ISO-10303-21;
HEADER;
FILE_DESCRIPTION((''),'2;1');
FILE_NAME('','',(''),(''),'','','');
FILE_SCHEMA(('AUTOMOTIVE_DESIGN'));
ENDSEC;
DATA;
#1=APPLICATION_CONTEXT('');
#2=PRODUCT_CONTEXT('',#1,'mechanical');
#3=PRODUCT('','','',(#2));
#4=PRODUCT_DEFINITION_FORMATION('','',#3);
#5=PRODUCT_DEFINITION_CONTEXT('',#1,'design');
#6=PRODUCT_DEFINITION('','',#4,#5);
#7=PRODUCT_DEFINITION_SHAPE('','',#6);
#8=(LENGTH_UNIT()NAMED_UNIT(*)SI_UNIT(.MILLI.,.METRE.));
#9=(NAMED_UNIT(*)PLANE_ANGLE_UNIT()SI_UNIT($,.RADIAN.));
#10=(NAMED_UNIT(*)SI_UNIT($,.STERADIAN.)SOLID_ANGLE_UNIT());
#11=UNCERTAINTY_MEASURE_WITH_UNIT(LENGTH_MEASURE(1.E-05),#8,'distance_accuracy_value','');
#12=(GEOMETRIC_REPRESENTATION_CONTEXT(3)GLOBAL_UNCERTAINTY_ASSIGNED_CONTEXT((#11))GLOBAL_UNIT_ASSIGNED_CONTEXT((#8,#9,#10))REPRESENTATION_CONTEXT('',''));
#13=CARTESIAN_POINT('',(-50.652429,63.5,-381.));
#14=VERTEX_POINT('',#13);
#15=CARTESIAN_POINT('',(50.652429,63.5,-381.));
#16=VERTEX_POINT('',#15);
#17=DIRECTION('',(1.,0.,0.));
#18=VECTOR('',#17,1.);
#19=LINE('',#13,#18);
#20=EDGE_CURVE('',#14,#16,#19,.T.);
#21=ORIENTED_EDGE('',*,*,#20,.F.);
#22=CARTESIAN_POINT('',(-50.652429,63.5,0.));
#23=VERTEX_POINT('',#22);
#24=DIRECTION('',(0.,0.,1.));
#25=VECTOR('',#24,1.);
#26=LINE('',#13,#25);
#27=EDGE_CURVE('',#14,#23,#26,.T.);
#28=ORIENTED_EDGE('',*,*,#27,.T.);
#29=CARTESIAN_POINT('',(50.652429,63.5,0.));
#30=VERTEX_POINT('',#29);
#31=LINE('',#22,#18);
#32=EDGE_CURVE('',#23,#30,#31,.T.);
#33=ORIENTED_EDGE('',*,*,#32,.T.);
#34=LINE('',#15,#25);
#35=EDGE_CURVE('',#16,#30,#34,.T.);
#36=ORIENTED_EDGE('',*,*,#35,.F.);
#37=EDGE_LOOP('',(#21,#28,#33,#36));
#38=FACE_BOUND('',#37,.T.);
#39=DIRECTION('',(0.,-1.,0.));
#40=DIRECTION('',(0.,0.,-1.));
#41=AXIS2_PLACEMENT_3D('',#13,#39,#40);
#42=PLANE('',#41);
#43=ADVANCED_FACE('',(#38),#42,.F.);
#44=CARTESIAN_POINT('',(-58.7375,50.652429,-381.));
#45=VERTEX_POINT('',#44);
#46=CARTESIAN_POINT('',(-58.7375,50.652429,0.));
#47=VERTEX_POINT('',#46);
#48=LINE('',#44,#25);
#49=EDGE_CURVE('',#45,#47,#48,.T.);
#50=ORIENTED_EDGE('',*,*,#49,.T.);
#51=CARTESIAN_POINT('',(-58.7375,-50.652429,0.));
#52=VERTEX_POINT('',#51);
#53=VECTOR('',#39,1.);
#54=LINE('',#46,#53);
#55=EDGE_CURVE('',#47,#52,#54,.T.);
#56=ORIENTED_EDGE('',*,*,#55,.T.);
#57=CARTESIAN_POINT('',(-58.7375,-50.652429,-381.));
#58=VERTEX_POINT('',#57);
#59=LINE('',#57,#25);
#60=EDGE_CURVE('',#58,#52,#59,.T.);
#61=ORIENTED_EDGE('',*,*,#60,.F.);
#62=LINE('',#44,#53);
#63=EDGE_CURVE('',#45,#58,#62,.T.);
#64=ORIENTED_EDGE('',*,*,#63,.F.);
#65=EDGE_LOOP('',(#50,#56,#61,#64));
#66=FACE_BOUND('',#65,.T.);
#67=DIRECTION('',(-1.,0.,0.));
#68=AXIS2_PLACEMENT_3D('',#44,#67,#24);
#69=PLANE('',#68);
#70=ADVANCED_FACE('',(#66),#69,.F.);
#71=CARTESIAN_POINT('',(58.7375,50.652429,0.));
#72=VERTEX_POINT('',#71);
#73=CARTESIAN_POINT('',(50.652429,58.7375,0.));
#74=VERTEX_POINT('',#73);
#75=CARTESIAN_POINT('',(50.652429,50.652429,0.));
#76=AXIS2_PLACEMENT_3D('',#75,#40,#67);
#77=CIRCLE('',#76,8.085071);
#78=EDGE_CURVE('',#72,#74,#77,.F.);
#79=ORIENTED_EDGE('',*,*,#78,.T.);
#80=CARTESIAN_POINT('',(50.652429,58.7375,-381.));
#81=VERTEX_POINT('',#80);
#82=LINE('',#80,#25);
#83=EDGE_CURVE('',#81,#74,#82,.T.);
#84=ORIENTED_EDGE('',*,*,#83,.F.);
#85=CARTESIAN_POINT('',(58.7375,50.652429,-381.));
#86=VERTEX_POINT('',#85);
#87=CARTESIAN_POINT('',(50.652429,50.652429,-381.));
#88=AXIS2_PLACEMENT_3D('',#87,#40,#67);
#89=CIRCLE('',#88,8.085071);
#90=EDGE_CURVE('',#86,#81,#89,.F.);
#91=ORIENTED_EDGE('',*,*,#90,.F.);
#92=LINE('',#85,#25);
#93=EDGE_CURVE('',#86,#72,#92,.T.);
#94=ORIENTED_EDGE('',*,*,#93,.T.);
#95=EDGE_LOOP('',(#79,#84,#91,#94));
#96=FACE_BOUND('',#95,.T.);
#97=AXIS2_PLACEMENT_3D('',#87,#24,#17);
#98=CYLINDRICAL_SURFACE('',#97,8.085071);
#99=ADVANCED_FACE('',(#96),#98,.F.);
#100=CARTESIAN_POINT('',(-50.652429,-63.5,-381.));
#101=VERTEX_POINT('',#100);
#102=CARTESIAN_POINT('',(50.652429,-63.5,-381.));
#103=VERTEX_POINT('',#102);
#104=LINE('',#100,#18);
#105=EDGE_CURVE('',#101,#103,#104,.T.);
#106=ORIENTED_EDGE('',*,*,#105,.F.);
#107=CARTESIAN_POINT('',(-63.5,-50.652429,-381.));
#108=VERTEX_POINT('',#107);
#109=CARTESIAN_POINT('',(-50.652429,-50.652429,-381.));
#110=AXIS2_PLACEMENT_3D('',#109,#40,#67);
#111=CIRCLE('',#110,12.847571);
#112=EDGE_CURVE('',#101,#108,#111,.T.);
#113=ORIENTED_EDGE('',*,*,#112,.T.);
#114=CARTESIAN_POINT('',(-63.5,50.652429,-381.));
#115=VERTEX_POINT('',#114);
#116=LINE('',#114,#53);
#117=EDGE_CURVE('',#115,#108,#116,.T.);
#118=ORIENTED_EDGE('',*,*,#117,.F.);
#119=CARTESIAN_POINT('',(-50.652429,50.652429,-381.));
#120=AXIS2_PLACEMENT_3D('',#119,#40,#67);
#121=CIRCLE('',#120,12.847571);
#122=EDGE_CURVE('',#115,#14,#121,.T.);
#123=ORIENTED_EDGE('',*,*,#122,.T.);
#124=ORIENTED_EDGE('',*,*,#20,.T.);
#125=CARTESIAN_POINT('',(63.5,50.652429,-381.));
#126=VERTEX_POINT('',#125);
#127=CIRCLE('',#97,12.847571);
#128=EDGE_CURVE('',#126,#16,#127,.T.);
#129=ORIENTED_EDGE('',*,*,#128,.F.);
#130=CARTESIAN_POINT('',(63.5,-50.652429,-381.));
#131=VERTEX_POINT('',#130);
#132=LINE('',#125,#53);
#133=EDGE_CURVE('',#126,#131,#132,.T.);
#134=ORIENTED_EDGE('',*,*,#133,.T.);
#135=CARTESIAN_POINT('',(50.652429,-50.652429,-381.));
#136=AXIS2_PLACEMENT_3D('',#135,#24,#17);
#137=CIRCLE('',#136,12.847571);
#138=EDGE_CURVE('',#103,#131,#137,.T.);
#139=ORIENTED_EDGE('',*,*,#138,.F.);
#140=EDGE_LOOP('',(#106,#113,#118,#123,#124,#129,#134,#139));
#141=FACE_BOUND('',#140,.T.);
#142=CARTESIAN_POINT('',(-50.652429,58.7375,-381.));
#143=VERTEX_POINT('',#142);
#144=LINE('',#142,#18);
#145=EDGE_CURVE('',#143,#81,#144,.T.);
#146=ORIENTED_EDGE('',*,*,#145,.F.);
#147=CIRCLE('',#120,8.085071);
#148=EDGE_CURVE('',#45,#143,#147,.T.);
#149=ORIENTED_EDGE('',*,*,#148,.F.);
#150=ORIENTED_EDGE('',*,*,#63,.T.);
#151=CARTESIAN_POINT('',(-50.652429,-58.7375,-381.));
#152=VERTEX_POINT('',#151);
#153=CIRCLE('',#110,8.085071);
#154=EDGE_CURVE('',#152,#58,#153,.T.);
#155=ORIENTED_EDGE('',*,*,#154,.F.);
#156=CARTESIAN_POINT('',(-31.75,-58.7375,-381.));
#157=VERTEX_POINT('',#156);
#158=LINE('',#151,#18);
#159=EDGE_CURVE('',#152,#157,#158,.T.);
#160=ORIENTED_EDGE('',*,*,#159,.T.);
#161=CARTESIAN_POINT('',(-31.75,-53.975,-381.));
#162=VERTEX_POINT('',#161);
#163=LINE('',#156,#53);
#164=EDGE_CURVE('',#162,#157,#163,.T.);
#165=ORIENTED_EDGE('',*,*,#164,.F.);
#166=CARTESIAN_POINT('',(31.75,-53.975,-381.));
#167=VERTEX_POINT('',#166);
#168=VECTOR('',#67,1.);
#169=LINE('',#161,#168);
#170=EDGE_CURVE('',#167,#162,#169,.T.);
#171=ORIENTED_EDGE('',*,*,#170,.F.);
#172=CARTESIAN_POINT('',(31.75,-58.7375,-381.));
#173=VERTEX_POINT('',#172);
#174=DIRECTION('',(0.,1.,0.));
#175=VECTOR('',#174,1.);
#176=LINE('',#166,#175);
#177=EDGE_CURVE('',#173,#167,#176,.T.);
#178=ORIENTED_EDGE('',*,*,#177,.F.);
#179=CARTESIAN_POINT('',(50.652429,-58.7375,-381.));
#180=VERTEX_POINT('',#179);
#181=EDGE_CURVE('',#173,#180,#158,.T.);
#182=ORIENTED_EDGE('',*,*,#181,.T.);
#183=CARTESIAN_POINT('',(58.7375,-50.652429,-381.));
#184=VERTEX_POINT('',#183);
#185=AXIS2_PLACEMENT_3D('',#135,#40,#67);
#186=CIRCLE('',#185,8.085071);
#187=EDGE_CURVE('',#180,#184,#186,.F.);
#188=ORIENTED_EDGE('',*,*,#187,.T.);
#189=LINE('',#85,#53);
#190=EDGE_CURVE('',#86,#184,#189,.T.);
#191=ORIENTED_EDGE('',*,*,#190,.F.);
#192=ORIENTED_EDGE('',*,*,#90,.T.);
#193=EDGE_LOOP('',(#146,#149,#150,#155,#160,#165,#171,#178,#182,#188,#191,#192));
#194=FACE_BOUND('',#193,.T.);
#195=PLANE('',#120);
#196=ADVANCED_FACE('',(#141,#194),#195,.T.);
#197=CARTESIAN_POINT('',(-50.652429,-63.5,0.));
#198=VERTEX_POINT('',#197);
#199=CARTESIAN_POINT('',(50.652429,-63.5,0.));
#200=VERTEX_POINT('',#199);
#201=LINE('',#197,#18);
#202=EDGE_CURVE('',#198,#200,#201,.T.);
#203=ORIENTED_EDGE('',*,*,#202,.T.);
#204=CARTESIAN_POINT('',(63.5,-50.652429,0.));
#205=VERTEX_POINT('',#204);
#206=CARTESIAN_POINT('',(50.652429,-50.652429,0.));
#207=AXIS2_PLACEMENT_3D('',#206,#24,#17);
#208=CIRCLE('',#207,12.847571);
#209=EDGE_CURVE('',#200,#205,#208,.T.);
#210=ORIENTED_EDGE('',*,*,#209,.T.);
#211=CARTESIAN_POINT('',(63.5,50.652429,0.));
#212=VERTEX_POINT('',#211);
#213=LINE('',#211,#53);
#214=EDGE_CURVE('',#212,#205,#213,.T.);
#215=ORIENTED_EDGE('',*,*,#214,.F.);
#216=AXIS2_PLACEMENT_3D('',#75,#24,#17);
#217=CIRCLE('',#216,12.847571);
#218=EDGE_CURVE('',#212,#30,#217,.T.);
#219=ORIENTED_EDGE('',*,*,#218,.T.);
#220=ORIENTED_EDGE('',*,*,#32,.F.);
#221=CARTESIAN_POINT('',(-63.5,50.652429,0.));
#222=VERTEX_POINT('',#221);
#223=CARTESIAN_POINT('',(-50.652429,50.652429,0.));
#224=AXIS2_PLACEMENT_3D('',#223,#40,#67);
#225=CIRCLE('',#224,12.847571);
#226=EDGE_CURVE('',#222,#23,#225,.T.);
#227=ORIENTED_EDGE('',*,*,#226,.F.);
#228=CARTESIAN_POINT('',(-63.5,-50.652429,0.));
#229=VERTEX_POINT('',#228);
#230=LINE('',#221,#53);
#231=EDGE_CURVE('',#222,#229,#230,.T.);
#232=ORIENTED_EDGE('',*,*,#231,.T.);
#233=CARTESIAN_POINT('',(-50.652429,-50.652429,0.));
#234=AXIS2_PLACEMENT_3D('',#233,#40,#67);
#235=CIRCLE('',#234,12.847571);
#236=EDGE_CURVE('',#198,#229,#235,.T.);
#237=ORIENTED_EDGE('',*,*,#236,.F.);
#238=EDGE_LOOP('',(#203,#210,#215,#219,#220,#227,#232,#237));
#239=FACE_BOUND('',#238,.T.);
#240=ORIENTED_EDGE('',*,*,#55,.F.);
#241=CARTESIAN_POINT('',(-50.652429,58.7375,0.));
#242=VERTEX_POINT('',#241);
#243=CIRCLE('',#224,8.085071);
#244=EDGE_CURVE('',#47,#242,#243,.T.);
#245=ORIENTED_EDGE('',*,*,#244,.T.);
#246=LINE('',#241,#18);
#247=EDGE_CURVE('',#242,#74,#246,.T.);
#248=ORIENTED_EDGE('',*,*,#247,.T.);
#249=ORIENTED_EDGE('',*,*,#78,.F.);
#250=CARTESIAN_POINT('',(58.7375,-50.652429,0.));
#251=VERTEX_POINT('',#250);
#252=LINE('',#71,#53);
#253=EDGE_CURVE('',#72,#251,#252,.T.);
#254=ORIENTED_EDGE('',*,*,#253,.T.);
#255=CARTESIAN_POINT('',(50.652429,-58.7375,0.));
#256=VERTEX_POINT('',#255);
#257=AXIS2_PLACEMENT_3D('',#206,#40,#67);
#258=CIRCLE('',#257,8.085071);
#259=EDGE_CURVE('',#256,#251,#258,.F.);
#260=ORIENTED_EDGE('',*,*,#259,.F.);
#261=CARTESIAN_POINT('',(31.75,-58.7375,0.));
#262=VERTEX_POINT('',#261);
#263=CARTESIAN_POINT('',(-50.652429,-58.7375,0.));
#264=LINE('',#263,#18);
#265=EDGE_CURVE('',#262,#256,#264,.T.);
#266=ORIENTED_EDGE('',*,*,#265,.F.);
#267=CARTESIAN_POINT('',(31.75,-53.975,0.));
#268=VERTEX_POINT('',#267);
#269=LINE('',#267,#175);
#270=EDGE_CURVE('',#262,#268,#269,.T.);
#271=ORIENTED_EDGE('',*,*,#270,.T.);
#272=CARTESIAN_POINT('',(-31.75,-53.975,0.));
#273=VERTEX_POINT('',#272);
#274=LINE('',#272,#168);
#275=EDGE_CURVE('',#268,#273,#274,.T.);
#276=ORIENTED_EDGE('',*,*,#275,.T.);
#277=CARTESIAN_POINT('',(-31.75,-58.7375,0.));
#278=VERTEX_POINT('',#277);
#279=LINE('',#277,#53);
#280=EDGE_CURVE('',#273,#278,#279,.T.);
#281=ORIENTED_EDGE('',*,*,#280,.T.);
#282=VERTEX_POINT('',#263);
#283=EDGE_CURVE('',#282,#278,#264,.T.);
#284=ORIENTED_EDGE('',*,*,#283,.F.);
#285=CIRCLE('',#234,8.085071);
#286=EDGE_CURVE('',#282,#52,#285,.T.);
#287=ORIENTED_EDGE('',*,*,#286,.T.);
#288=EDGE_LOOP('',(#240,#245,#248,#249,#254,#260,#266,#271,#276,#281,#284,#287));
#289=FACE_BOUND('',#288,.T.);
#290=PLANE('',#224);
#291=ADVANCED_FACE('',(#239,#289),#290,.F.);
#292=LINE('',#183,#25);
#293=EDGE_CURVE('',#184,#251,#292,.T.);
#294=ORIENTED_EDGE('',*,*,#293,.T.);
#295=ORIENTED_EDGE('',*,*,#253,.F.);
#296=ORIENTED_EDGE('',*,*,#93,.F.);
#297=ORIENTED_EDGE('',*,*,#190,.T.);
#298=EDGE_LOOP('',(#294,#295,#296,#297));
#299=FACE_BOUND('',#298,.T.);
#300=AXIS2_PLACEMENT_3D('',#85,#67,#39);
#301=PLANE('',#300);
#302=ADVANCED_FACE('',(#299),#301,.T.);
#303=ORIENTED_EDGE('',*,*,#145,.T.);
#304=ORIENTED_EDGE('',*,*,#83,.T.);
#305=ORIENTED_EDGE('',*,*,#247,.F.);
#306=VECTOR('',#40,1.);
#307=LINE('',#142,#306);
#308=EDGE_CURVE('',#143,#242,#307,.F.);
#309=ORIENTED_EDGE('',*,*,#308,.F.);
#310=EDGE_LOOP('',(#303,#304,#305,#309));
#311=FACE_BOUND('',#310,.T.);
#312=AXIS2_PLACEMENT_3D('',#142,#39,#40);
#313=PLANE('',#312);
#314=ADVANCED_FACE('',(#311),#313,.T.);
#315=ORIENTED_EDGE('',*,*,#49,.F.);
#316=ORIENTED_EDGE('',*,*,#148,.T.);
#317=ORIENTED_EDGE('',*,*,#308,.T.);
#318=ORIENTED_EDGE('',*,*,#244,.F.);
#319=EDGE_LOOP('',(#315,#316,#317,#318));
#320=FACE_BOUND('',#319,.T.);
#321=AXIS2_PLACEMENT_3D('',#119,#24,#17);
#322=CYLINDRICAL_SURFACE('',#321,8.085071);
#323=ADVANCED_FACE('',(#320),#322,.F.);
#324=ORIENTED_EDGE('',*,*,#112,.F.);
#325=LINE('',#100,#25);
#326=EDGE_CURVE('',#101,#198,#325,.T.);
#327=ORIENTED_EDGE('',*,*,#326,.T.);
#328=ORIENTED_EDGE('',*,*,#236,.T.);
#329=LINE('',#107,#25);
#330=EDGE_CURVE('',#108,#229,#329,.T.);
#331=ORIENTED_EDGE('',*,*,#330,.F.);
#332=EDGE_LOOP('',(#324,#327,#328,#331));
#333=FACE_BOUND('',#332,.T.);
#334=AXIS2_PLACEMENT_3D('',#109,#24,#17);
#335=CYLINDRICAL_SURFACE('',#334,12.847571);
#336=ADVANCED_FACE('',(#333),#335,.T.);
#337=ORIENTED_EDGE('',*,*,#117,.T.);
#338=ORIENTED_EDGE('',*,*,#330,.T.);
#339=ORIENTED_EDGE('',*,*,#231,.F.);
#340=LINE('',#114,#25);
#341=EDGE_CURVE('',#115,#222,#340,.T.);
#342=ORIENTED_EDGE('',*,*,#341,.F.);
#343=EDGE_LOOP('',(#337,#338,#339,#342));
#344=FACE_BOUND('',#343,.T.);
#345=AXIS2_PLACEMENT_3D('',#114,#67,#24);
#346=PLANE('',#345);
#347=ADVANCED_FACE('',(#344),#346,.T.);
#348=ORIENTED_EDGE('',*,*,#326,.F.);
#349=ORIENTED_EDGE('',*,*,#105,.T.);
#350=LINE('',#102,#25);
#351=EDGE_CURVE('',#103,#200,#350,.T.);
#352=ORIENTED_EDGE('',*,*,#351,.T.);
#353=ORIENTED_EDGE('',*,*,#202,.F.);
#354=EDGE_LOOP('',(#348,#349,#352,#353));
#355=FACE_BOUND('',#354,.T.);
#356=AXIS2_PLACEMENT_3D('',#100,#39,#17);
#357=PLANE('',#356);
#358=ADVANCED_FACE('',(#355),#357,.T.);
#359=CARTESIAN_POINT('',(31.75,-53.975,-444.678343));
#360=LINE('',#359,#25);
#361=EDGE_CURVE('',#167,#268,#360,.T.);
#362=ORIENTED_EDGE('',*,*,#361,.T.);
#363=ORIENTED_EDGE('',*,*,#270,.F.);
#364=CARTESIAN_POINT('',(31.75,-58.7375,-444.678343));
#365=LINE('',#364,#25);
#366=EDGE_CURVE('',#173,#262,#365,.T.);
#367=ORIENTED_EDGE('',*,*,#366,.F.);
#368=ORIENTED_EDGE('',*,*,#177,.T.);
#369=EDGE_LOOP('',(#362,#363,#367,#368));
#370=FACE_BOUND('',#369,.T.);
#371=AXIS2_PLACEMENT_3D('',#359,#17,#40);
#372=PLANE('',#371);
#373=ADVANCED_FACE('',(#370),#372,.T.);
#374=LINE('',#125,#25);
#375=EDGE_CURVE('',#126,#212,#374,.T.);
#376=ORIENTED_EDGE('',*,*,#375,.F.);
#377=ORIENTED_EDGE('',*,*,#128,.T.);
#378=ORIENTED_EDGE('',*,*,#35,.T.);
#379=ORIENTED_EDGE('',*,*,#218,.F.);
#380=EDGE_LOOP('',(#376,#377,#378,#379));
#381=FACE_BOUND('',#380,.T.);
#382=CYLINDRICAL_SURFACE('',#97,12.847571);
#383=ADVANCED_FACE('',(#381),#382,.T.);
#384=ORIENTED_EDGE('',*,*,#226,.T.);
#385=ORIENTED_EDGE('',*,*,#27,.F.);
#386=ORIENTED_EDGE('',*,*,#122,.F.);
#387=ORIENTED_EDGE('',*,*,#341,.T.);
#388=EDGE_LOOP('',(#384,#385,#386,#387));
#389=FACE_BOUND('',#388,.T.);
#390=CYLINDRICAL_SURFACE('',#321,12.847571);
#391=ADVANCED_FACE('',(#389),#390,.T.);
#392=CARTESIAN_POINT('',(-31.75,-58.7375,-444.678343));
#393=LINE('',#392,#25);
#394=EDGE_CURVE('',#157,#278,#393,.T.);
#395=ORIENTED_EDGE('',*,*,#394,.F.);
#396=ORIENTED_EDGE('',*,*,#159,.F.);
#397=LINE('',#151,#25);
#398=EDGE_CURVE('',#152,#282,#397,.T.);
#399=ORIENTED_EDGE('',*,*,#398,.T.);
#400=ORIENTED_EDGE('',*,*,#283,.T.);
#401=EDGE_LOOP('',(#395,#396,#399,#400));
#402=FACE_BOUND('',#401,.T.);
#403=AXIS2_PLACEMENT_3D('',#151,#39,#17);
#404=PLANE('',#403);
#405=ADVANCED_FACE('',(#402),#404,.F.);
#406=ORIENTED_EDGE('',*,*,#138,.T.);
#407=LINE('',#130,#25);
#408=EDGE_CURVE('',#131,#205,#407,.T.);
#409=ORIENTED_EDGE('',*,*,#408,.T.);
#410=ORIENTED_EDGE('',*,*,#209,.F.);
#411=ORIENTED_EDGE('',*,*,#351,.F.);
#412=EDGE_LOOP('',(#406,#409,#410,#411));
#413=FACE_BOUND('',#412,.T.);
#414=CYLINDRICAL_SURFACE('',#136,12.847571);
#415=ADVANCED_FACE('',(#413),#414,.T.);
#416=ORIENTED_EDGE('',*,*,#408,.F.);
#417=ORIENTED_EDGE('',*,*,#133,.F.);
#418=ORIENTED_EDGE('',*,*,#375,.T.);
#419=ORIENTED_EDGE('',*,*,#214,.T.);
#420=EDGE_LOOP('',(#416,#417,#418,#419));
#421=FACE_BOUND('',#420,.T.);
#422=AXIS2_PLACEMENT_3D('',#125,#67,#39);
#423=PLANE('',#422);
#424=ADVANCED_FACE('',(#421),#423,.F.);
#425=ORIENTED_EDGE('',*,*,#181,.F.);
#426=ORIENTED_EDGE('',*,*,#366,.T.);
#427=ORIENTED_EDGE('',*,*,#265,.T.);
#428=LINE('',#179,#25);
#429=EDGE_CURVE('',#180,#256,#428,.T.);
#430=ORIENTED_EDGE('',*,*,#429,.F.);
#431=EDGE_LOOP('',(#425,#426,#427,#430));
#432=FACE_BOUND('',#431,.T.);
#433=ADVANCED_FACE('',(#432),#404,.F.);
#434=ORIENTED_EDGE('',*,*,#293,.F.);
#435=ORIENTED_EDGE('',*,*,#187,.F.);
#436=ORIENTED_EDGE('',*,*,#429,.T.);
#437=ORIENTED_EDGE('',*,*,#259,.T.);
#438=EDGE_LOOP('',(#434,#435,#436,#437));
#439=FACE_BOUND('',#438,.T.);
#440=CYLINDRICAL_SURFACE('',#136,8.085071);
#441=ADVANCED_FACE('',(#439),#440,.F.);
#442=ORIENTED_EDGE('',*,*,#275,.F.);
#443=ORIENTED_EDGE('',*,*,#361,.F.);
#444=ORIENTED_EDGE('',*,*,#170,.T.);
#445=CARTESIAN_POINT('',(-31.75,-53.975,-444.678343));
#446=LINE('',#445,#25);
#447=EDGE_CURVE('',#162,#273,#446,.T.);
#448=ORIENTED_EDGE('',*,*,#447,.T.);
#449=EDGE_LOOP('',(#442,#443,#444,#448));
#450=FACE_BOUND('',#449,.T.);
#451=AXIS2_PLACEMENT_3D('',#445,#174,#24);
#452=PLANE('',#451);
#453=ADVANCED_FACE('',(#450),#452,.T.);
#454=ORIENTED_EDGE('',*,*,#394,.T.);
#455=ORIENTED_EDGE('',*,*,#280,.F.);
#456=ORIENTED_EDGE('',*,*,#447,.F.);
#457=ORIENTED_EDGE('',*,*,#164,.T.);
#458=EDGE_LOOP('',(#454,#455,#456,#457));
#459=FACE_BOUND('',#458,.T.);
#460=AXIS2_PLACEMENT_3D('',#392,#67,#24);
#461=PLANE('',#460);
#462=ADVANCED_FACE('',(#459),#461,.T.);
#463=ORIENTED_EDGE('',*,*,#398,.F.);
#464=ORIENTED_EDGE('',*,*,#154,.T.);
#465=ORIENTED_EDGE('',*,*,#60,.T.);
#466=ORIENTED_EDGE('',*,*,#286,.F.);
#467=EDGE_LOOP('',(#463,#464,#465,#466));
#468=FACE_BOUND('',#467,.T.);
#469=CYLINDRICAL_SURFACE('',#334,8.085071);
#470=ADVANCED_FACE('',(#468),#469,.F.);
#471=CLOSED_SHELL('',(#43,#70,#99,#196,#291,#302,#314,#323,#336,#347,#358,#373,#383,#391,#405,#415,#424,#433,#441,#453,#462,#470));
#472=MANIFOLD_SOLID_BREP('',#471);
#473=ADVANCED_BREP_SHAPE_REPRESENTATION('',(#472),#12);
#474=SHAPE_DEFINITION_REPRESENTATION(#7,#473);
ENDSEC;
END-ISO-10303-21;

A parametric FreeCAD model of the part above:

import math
import FreeCAD as App
import Part
import Sketcher

V = App.Vector
Q = App.Units.Quantity


def faces_at(feature, points):
    """Names of the faces that lie closest to the given points."""
    faces = feature.Shape.Faces
    near = lambda p: min(range(len(faces)), key=lambda i: faces[i].distToShape(Part.Vertex(*p))[0])
    return sorted({f"Face{near(p) + 1}" for p in points})


def add_polygon(sketch, points):
    """Adds a closed chain of lines whose ends are joined by coincident constraints."""
    first, n = sketch.GeometryCount, len(points)
    for a, b in zip(points, points[1:] + points[:1]):
        sketch.addGeometry(Part.LineSegment(App.Vector(*a, 0), App.Vector(*b, 0)), False)
    for i in range(n):
        sketch.addConstraint(Sketcher.Constraint("Coincident", first + i, 2, first + (i + 1) % n, 1))

doc = App.newDocument("Part")
body = doc.addObject("PartDesign::Body", "Body")

# Sketch on XY plane
sketch1 = body.newObject("Sketcher::SketchObject", "Sketch")
sketch1.AttachmentSupport = (doc.getObject("XY_Plane"), [""])
sketch1.MapMode = "FlatFace"
sketch1.addGeometry([
    Part.LineSegment(V(51, 64, 0), V(-51, 64, 0)),  # 0
    Part.ArcOfCircle(Part.Circle(V(-51, 51, 0), V(0, 0, 1), 13), math.radians(90), math.radians(180)),  # 1
    Part.LineSegment(V(-64, 51, 0), V(-64, -51, 0)),  # 2
    Part.ArcOfCircle(Part.Circle(V(-51, -51, 0), V(0, 0, 1), 13), math.radians(180), math.radians(270)),  # 3
    Part.LineSegment(V(-51, -64, 0), V(51, -64, 0)),  # 4
    Part.ArcOfCircle(Part.Circle(V(51, -51, 0), V(0, 0, 1), 13), math.radians(-90), math.radians(0)),  # 5
    Part.LineSegment(V(64, -51, 0), V(64, 51, 0)),  # 6
    Part.ArcOfCircle(Part.Circle(V(51, 51, 0), V(0, 0, 1), 13), math.radians(0), math.radians(90)),  # 7
], False)
sketch1.addConstraint([
    Sketcher.Constraint("Tangent", 0, 2, 1, 1),
    Sketcher.Constraint("Tangent", 1, 2, 2, 1),
    Sketcher.Constraint("Tangent", 2, 2, 3, 1),
    Sketcher.Constraint("Tangent", 3, 2, 4, 1),
    Sketcher.Constraint("Tangent", 4, 2, 5, 1),
    Sketcher.Constraint("Tangent", 5, 2, 6, 1),
    Sketcher.Constraint("Tangent", 6, 2, 7, 1),
    Sketcher.Constraint("Tangent", 7, 2, 0, 1),
    Sketcher.Constraint("Horizontal", 0),
    Sketcher.Constraint("Vertical", 2),
    Sketcher.Constraint("Horizontal", 4),
    Sketcher.Constraint("Vertical", 6),
    Sketcher.Constraint("Equal", 1, 3),
    Sketcher.Constraint("Equal", 3, 5),
    Sketcher.Constraint("Equal", 5, 7),
    Sketcher.Constraint("Symmetric", 1, 3, 5, 3, -1, 1),
    Sketcher.Constraint("Equal", 4, 2),
    Sketcher.Constraint("DistanceY", -1, 1, 0, 2, Q("2.5 in")),
    Sketcher.Constraint("Radius", 1, 12.847571),
])
pad1 = body.newObject("PartDesign::Pad", "Pad")
pad1.Profile = sketch1
pad1.Length = Q("15 in")
pad1.Reversed = True
doc.recompute()

thickness = body.newObject("PartDesign::Thickness", "Thickness")
thickness.Base = (pad1, faces_at(pad1, [(0, 0, -381), (0, 0, 0)]))
thickness.Value = Q("0.1875 in")
thickness.Reversed = True
thickness.Join = "Intersection"

# Sketch on XY plane
sketch2 = body.newObject("Sketcher::SketchObject", "Sketch001")
sketch2.AttachmentSupport = (doc.getObject("XY_Plane"), [""])
sketch2.MapMode = "FlatFace"
add_polygon(sketch2, [(-31.8, -54), (-31.8, -58.7), (31.8, -58.7), (31.8, -54)])  # lines 0-3
sketch2.addConstraint([
    Sketcher.Constraint("Vertical", 0),
    Sketcher.Constraint("Horizontal", 1),
    Sketcher.Constraint("Vertical", 2),
    Sketcher.Constraint("Horizontal", 3),
    Sketcher.Constraint("DistanceX", 1, 1, 1, 2, Q("2.5 in")),
    Sketcher.Constraint("DistanceY", 0, 2, 0, 1, Q("0.1875 in")),
    Sketcher.Constraint("DistanceX", 0, 2, -1, 1, Q("1.25 in")),
    Sketcher.Constraint("DistanceY", 0, 2, -1, 1, Q("2.3125 in")),
])
pad2 = body.newObject("PartDesign::Pad", "Pad001")
pad2.Profile = sketch2
pad2.Length = Q("15 in")
pad2.Reversed = True

doc.recompute()
